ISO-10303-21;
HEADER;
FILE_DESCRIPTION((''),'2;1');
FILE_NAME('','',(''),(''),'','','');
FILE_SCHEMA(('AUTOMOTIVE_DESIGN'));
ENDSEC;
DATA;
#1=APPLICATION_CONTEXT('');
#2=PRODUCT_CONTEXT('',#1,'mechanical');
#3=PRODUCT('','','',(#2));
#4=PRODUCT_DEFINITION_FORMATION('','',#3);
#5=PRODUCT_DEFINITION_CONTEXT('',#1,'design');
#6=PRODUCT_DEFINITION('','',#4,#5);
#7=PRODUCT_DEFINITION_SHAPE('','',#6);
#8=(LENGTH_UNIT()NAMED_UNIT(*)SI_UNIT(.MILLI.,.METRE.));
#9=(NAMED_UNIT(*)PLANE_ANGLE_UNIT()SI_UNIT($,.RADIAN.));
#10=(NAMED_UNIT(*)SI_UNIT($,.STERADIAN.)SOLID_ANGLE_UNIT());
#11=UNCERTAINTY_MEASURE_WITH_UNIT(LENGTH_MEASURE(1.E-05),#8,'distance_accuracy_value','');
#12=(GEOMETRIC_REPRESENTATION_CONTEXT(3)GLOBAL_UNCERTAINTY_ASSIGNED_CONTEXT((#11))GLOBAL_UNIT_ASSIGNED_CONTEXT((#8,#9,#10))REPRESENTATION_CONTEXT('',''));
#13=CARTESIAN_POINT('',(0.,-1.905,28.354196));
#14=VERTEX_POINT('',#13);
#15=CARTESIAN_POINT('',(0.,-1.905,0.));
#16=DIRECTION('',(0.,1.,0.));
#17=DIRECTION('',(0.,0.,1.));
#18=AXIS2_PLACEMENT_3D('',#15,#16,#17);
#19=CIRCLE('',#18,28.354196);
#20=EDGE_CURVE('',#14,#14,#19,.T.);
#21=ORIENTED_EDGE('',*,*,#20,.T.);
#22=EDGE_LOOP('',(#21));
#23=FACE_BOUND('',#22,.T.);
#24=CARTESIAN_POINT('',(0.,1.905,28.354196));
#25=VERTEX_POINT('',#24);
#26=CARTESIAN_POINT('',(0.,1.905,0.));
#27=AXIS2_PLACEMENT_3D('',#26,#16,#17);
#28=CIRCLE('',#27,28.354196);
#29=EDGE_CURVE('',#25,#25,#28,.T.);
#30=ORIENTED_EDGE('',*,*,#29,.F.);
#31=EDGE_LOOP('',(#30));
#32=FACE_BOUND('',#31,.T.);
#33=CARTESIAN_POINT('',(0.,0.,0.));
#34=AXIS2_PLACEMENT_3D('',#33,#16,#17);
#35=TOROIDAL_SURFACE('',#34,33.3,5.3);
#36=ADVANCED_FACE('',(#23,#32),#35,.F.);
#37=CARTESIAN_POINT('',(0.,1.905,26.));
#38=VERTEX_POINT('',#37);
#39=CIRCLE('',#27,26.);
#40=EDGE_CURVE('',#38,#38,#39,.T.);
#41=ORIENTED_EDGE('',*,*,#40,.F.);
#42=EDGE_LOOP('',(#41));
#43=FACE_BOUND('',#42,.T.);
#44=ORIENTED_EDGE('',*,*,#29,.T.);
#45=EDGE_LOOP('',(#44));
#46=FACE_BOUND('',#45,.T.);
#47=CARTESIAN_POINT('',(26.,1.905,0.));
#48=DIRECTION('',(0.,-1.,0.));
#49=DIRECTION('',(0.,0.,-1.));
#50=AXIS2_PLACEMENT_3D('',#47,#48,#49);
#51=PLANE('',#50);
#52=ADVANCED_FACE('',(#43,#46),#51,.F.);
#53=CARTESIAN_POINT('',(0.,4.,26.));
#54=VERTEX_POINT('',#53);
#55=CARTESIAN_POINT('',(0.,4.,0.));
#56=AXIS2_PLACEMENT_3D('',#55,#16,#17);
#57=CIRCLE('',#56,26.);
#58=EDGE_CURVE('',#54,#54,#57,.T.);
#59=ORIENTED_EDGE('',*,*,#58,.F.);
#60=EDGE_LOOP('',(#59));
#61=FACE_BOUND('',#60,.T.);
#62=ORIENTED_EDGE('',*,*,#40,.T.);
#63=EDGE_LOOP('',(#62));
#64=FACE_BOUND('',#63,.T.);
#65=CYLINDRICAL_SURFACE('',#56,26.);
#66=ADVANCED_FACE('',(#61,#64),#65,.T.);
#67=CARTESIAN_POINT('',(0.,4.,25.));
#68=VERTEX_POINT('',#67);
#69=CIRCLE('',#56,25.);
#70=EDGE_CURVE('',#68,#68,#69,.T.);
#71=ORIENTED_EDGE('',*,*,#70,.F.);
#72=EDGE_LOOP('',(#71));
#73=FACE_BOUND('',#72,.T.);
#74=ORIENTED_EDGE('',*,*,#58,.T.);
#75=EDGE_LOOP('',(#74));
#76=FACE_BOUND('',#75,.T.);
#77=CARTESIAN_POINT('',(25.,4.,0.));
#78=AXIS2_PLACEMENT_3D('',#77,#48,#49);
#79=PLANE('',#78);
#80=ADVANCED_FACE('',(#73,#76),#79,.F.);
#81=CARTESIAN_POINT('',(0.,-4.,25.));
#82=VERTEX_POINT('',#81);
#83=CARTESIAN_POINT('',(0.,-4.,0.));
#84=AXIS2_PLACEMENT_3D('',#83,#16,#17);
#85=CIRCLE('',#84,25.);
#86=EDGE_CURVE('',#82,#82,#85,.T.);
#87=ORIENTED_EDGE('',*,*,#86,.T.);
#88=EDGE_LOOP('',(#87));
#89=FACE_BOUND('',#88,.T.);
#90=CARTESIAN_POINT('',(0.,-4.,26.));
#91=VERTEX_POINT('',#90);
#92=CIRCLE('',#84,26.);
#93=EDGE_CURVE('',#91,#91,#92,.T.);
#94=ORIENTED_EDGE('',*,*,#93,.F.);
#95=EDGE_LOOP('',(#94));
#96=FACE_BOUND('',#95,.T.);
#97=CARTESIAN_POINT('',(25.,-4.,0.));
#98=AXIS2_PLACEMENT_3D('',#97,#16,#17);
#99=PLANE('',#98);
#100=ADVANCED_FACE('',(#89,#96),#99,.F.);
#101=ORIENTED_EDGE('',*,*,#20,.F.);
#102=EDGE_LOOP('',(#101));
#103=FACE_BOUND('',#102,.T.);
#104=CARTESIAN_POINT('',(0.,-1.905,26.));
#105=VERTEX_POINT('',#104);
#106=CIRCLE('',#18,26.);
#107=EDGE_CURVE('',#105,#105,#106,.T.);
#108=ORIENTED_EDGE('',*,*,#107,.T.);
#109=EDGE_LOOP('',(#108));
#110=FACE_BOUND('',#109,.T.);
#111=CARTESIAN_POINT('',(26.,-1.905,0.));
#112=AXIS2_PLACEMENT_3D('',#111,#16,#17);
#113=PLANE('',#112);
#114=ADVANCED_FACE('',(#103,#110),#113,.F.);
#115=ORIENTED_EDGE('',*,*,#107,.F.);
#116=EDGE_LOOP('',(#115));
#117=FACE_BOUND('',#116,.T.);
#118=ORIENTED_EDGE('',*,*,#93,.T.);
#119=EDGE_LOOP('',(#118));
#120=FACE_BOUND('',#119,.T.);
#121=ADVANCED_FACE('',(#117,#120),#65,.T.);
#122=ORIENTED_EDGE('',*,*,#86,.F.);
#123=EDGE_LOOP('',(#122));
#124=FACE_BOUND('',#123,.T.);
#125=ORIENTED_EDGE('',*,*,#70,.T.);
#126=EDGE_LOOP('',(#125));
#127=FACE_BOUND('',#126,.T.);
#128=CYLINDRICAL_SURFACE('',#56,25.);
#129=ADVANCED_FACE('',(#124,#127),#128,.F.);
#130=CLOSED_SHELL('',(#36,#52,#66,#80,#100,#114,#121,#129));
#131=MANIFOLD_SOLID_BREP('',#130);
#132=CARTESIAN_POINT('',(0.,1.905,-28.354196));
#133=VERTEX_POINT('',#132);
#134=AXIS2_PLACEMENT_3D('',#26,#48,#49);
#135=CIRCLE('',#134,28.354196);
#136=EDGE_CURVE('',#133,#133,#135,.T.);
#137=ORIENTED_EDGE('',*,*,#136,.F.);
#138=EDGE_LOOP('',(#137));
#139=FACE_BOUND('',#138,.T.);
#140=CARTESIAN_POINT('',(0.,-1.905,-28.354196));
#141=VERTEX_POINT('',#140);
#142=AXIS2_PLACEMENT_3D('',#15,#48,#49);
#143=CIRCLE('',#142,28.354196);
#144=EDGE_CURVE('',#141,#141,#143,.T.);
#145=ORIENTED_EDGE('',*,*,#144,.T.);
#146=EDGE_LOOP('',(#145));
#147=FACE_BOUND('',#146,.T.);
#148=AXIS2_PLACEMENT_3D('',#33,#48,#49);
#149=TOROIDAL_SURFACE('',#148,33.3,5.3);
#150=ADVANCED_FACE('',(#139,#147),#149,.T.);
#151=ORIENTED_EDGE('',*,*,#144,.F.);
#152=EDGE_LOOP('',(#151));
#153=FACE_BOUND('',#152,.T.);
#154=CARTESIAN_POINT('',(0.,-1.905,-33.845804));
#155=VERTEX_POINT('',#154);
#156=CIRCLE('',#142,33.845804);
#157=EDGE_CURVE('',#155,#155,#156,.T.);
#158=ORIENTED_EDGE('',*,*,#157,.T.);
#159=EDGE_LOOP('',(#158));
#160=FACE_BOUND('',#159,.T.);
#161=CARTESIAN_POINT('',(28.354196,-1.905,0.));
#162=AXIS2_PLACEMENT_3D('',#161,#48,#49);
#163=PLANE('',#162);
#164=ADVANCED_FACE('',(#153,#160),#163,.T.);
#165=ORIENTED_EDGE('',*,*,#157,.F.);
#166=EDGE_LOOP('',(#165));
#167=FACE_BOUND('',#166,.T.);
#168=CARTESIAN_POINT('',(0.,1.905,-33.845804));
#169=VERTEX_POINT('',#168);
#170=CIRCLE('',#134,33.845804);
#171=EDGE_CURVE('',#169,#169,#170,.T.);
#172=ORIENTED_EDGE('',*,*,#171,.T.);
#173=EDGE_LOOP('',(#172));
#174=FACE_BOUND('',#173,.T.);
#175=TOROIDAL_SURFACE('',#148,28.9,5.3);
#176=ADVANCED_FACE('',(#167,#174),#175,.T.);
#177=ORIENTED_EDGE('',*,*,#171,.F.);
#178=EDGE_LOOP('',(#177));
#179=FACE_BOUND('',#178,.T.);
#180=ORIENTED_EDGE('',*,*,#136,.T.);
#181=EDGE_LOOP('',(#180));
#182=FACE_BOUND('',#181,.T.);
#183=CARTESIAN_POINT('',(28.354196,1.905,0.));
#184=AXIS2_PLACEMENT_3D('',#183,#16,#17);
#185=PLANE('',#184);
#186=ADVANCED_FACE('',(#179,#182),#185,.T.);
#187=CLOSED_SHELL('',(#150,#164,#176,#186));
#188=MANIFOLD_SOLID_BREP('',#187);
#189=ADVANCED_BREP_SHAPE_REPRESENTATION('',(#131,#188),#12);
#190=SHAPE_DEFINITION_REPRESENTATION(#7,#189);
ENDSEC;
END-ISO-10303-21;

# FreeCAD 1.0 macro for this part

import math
import FreeCAD as App
import Part
import Sketcher

V = App.Vector

doc = App.newDocument("Part")
params = doc.addObject("Spreadsheet::Sheet", "Params")
for row, (alias, value) in enumerate([
    ("sketch1_radius", "5.3 mm"),
    ("sketch1_width", "1 mm"),
    ("sketch1_height", "8 mm"),
    ("revolution_angle", "360 deg"),
    ("sketch2_radius", "5.3 mm"),
    ("revolution2_angle", "360 deg"),
], start=1):
    params.set(f"A{row}", alias)
    params.set(f"B{row}", "=" + value)
    params.setAlias(f"B{row}", alias)

body = doc.addObject("PartDesign::Body", "Body")

# Sketch on XY plane
sketch1 = body.newObject("Sketcher::SketchObject", "Sketch")
sketch1.AttachmentSupport = (doc.getObject("XY_Plane"), [""])
sketch1.MapMode = "FlatFace"
sketch1.addGeometry([
    Part.LineSegment(V(25, 4, 0), V(25, -4, 0)),  # 0
    Part.LineSegment(V(25, -4, 0), V(26, -4, 0)),  # 1
    Part.LineSegment(V(26, -4, 0), V(26, -1.9, 0)),  # 2
    Part.LineSegment(V(26, -1.9, 0), V(28.4, -1.9, 0)),  # 3
    Part.ArcOfCircle(Part.Circle(V(33.3, 0, 0), V(0, 0, 1), 5.3), math.radians(159), math.radians(201)),  # 4
    Part.LineSegment(V(28.4, 1.9, 0), V(26, 1.9, 0)),  # 5
    Part.LineSegment(V(26, 1.9, 0), V(26, 4, 0)),  # 6
    Part.LineSegment(V(26, 4, 0), V(25, 4, 0)),  # 7
], False)
sketch1.addConstraint([
    Sketcher.Constraint("Coincident", 0, 2, 1, 1),
    Sketcher.Constraint("Coincident", 1, 2, 2, 1),
    Sketcher.Constraint("Coincident", 2, 2, 3, 1),
    Sketcher.Constraint("Coincident", 3, 2, 4, 2),
    Sketcher.Constraint("Coincident", 4, 1, 5, 1),
    Sketcher.Constraint("Coincident", 5, 2, 6, 1),
    Sketcher.Constraint("Coincident", 6, 2, 7, 1),
    Sketcher.Constraint("Coincident", 7, 2, 0, 1),
    Sketcher.Constraint("Vertical", 0),
    Sketcher.Constraint("Horizontal", 1),
    Sketcher.Constraint("Vertical", 2),
    Sketcher.Constraint("Horizontal", 3),
    Sketcher.Constraint("Horizontal", 5),
    Sketcher.Constraint("Vertical", 6),
    Sketcher.Constraint("Horizontal", 7),
    Sketcher.Constraint("Symmetric", 3, 2, 4, 1, -1),
    Sketcher.Constraint("Symmetric", 1, 2, 6, 2, -1),
    Sketcher.Constraint("Radius", 4, 5.3),
    Sketcher.Constraint("DistanceX", 1, 1, 1, 2, 1.0),
    Sketcher.Constraint("DistanceY", 0, 2, 0, 1, 8.0),
    Sketcher.Constraint("DistanceX", -1, 1, 0, 2, 25.0),
    Sketcher.Constraint("DistanceX", -1, 1, 4, 3, 33.3),
    Sketcher.Constraint("DistanceY", 2, 1, 2, 2, 2.095),
])
sketch1.setExpression("Constraints[17]", "Params.sketch1_radius")
sketch1.setExpression("Constraints[18]", "Params.sketch1_width")
sketch1.setExpression("Constraints[19]", "Params.sketch1_height")
revolution = body.newObject("PartDesign::Revolution", "Revolution")
revolution.Profile = sketch1
revolution.ReferenceAxis = (sketch1, ["V_Axis"])
revolution.setExpression("Angle", "Params.revolution_angle")
body2 = doc.addObject("PartDesign::Body", "Body001")

# Sketch on XY plane
sketch2 = body2.newObject("Sketcher::SketchObject", "Sketch001")
sketch2.AttachmentSupport = (doc.getObject("XY_Plane001"), [""])
sketch2.MapMode = "FlatFace"
sketch2.addGeometry([
    Part.LineSegment(V(33.8, 1.9, 0), V(28.4, 1.9, 0)),
    Part.ArcOfCircle(Part.Circle(V(33.3, 0, 0), V(0, 0, 1), 5.3), math.radians(159), math.radians(201)),
    Part.LineSegment(V(28.4, -1.9, 0), V(33.8, -1.9, 0)),
    Part.ArcOfCircle(Part.Circle(V(28.9, 0, 0), V(0, 0, 1), 5.3), math.radians(-21), math.radians(21)),
], False)
sketch2.addConstraint([
    Sketcher.Constraint("Coincident", 0, 2, 1, 1),
    Sketcher.Constraint("Coincident", 1, 2, 2, 1),
    Sketcher.Constraint("Coincident", 2, 2, 3, 1),
    Sketcher.Constraint("Coincident", 3, 2, 0, 1),
    Sketcher.Constraint("Horizontal", 0),
    Sketcher.Constraint("Horizontal", 2),
    Sketcher.Constraint("Equal", 1, 3),
    Sketcher.Constraint("Symmetric", 0, 2, 1, 2, -1),
    Sketcher.Constraint("PointOnObject", 3, 3, -1),
    Sketcher.Constraint("Radius", 1, 5.3),
    Sketcher.Constraint("DistanceX", -1, 1, 1, 3, 33.3),
    Sketcher.Constraint("DistanceX", -1, 1, 3, 3, 28.9),
    Sketcher.Constraint("DistanceY", 1, 2, 0, 2, 3.81),
])
sketch2.setExpression("Constraints[9]", "Params.sketch2_radius")
revolution2 = body2.newObject("PartDesign::Revolution", "Revolution001")
revolution2.Profile = sketch2
revolution2.ReferenceAxis = (sketch2, ["V_Axis"])
revolution2.setExpression("Angle", "Params.revolution2_angle")

doc.recompute()
